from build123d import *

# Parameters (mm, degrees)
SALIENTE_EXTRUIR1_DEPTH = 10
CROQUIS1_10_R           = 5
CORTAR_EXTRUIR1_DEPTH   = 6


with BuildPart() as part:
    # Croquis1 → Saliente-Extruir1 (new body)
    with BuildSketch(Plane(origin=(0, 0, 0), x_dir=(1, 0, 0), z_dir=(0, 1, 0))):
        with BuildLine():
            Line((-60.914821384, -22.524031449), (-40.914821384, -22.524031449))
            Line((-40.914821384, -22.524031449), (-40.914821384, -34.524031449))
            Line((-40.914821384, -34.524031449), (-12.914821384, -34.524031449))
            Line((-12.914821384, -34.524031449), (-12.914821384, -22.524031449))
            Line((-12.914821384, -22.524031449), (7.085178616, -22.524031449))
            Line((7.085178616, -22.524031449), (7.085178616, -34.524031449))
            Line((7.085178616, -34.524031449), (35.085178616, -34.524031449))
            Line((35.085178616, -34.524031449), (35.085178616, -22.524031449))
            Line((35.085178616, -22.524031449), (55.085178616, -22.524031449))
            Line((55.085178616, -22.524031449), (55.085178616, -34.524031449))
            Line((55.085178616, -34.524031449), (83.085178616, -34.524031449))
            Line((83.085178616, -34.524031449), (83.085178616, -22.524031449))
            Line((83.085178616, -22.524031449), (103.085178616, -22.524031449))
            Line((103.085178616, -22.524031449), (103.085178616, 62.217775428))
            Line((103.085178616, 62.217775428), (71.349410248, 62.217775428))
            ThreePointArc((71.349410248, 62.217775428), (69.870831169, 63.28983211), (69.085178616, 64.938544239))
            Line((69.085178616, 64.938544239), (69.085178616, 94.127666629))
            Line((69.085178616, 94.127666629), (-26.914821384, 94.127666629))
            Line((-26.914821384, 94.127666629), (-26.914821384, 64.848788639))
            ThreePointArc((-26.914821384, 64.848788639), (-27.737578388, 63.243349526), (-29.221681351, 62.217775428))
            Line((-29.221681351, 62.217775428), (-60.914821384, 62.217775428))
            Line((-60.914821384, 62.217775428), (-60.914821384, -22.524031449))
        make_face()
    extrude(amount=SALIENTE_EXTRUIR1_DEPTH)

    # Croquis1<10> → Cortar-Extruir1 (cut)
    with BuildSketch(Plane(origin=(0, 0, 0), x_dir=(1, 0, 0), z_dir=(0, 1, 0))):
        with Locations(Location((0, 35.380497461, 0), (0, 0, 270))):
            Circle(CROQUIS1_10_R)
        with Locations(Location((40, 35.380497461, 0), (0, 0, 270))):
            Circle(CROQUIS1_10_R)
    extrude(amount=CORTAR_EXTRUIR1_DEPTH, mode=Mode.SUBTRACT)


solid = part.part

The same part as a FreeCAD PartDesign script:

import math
import FreeCAD as App
import Part
import Sketcher
from FreeCAD import Vector
Q = App.Units.Quantity

doc = App.newDocument("Part")
body = doc.addObject("PartDesign::Body", "Body")

sketch1 = body.newObject("Sketcher::SketchObject", "Sketch")
sketch1.AttachmentSupport = (doc.getObject("XZ_Plane"), [""])
sketch1.MapMode = "FlatFace"
sketch1.addGeometry(Part.LineSegment(Vector(-60.914821, 22.524031, 0), Vector(-40.914821, 22.524031, 0)), False)
sketch1.addGeometry(Part.LineSegment(Vector(-40.914821, 22.524031, 0), Vector(-40.914821, 34.524031, 0)), False)
sketch1.addGeometry(Part.LineSegment(Vector(-40.914821, 34.524031, 0), Vector(-12.914821, 34.524031, 0)), False)
sketch1.addGeometry(Part.LineSegment(Vector(-12.914821, 34.524031, 0), Vector(-12.914821, 22.524031, 0)), False)
sketch1.addGeometry(Part.LineSegment(Vector(-12.914821, 22.524031, 0), Vector(7.085179, 22.524031, 0)), False)
sketch1.addGeometry(Part.LineSegment(Vector(7.085179, 22.524031, 0), Vector(7.085179, 34.524031, 0)), False)
sketch1.addGeometry(Part.LineSegment(Vector(7.085179, 34.524031, 0), Vector(35.085179, 34.524031, 0)), False)
sketch1.addGeometry(Part.LineSegment(Vector(35.085179, 34.524031, 0), Vector(35.085179, 22.524031, 0)), False)
sketch1.addGeometry(Part.LineSegment(Vector(35.085179, 22.524031, 0), Vector(55.085179, 22.524031, 0)), False)
sketch1.addGeometry(Part.LineSegment(Vector(55.085179, 22.524031, 0), Vector(55.085179, 34.524031, 0)), False)
sketch1.addGeometry(Part.LineSegment(Vector(55.085179, 34.524031, 0), Vector(83.085179, 34.524031, 0)), False)
sketch1.addGeometry(Part.LineSegment(Vector(83.085179, 34.524031, 0), Vector(83.085179, 22.524031, 0)), False)
sketch1.addGeometry(Part.LineSegment(Vector(83.085179, 22.524031, 0), Vector(103.085179, 22.524031, 0)), False)
sketch1.addGeometry(Part.LineSegment(Vector(103.085179, 22.524031, 0), Vector(103.085179, -62.217775, 0)), False)
sketch1.addGeometry(Part.LineSegment(Vector(103.085179, -62.217775, 0), Vector(71.34941, -62.217775, 0)), False)
sketch1.addGeometry(Part.ArcOfCircle(Part.Circle(Vector(72.71483, -65.656616, 0), Vector(0, 0, 1), 3.7), math.radians(111.65596), math.radians(168.80939)), False)
sketch1.addGeometry(Part.LineSegment(Vector(69.085179, -64.938544, 0), Vector(69.085179, -94.127667, 0)), False)
sketch1.addGeometry(Part.LineSegment(Vector(69.085179, -94.127667, 0), Vector(-26.914821, -94.127667, 0)), False)
sketch1.addGeometry(Part.LineSegment(Vector(-26.914821, -94.127667, 0), Vector(-26.914821, -64.848789, 0)), False)
sketch1.addGeometry(Part.ArcOfCircle(Part.Circle(Vector(-30.519636, -65.682644, 0), Vector(0, 0, 1), 3.7), math.radians(13.024421), math.radians(69.463842)), False)
sketch1.addGeometry(Part.LineSegment(Vector(-29.221681, -62.217775, 0), Vector(-60.914821, -62.217775, 0)), False)
sketch1.addGeometry(Part.LineSegment(Vector(-60.914821, -62.217775, 0), Vector(-60.914821, 22.524031, 0)), False)
sketch1.addConstraint(Sketcher.Constraint("Coincident", 0, 2, 1, 1))
sketch1.addConstraint(Sketcher.Constraint("Coincident", 1, 2, 2, 1))
sketch1.addConstraint(Sketcher.Constraint("Coincident", 2, 2, 3, 1))
sketch1.addConstraint(Sketcher.Constraint("Coincident", 3, 2, 4, 1))
sketch1.addConstraint(Sketcher.Constraint("Coincident", 4, 2, 5, 1))
sketch1.addConstraint(Sketcher.Constraint("Coincident", 5, 2, 6, 1))
sketch1.addConstraint(Sketcher.Constraint("Coincident", 6, 2, 7, 1))
sketch1.addConstraint(Sketcher.Constraint("Coincident", 7, 2, 8, 1))
sketch1.addConstraint(Sketcher.Constraint("Coincident", 8, 2, 9, 1))
sketch1.addConstraint(Sketcher.Constraint("Coincident", 9, 2, 10, 1))
sketch1.addConstraint(Sketcher.Constraint("Coincident", 10, 2, 11, 1))
sketch1.addConstraint(Sketcher.Constraint("Coincident", 11, 2, 12, 1))
sketch1.addConstraint(Sketcher.Constraint("Coincident", 12, 2, 13, 1))
sketch1.addConstraint(Sketcher.Constraint("Coincident", 13, 2, 14, 1))
sketch1.addConstraint(Sketcher.Constraint("Coincident", 14, 2, 15, 1))
sketch1.addConstraint(Sketcher.Constraint("Coincident", 15, 2, 16, 1))
sketch1.addConstraint(Sketcher.Constraint("Coincident", 16, 2, 17, 1))
sketch1.addConstraint(Sketcher.Constraint("Coincident", 17, 2, 18, 1))
sketch1.addConstraint(Sketcher.Constraint("Coincident", 18, 2, 19, 1))
sketch1.addConstraint(Sketcher.Constraint("Coincident", 19, 2, 20, 1))
sketch1.addConstraint(Sketcher.Constraint("Coincident", 20, 2, 21, 1))
sketch1.addConstraint(Sketcher.Constraint("Coincident", 21, 2, 0, 1))
sketch1.addConstraint(Sketcher.Constraint("Horizontal", 0))
sketch1.addConstraint(Sketcher.Constraint("Vertical", 1))
sketch1.addConstraint(Sketcher.Constraint("Horizontal", 2))
sketch1.addConstraint(Sketcher.Constraint("Vertical", 3))
sketch1.addConstraint(Sketcher.Constraint("Horizontal", 4))
sketch1.addConstraint(Sketcher.Constraint("Vertical", 5))
sketch1.addConstraint(Sketcher.Constraint("Horizontal", 6))
sketch1.addConstraint(Sketcher.Constraint("Vertical", 7))
sketch1.addConstraint(Sketcher.Constraint("Horizontal", 8))
sketch1.addConstraint(Sketcher.Constraint("Vertical", 9))
sketch1.addConstraint(Sketcher.Constraint("Horizontal", 10))
sketch1.addConstraint(Sketcher.Constraint("Vertical", 11))
sketch1.addConstraint(Sketcher.Constraint("Horizontal", 12))
sketch1.addConstraint(Sketcher.Constraint("Vertical", 13))
sketch1.addConstraint(Sketcher.Constraint("Horizontal", 14))
sketch1.addConstraint(Sketcher.Constraint("Vertical", 16))
sketch1.addConstraint(Sketcher.Constraint("Horizontal", 17))
sketch1.addConstraint(Sketcher.Constraint("Vertical", 18))
sketch1.addConstraint(Sketcher.Constraint("Horizontal", 20))
sketch1.addConstraint(Sketcher.Constraint("Vertical", 21))
sketch1.addConstraint(Sketcher.Constraint("Equal", 15, 19))
sketch1.addConstraint(Sketcher.Constraint("Horizontal", 0, 2, 3, 2))
sketch1.addConstraint(Sketcher.Constraint("Horizontal", 2, 2, 5, 2))
sketch1.addConstraint(Sketcher.Constraint("Horizontal", 4, 2, 7, 2))
sketch1.addConstraint(Sketcher.Constraint("Horizontal", 6, 2, 9, 2))
sketch1.addConstraint(Sketcher.Constraint("Horizontal", 8, 2, 11, 2))
sketch1.addConstraint(Sketcher.Constraint("Horizontal", 14, 2, 19, 2))
sketch1.addConstraint(Sketcher.Constraint("Equal", 0, 4))
sketch1.addConstraint(Sketcher.Constraint("Equal", 2, 6))
sketch1.addConstraint(Sketcher.Constraint("Equal", 4, 8))
sketch1.addConstraint(Sketcher.Constraint("Equal", 6, 10))
sketch1.addConstraint(Sketcher.Constraint("Equal", 8, 12))
sketch1.addConstraint(Sketcher.Constraint("Radius", 15, Q("3.7 mm")))
sketch1.addConstraint(Sketcher.Constraint("DistanceX", 0, 1, 0, 2, Q("20 mm")))
sketch1.addConstraint(Sketcher.Constraint("DistanceX", 2, 1, 2, 2, Q("28 mm")))
sketch1.addConstraint(Sketcher.Constraint("DistanceX", 17, 2, 17, 1, Q("96 mm")))
sketch1.addConstraint(Sketcher.Constraint("DistanceY", 1, 1, 1, 2, Q("12 mm")))
sketch1.addConstraint(Sketcher.Constraint("DistanceX", 15, 2, 13, 2, Q("34 mm")))
sketch1.addConstraint(Sketcher.Constraint("DistanceX", 14, 2, 14, 1, Q("31.735768 mm")))
sketch1.addConstraint(Sketcher.Constraint("DistanceX", 20, 2, 20, 1, Q("31.69314 mm")))
sketch1.addConstraint(Sketcher.Constraint("DistanceY", 13, 2, 13, 1, Q("84.741807 mm")))
sketch1.addConstraint(Sketcher.Constraint("DistanceY", 16, 2, 16, 1, Q("29.189122 mm")))
sketch1.addConstraint(Sketcher.Constraint("DistanceY", 18, 1, 18, 2, Q("29.278878 mm")))
sketch1.addConstraint(Sketcher.Constraint("DistanceX", -1, 1, 15, 3, Q("72.71483 mm")))
sketch1.addConstraint(Sketcher.Constraint("DistanceX", 0, 2, -1, 1, Q("40.914821 mm")))
sketch1.addConstraint(Sketcher.Constraint("DistanceY", -1, 1, 0, 2, Q("22.524031 mm")))
pad1 = body.newObject("PartDesign::Pad", "Pad")
pad1.Profile = sketch1
pad1.Length = 10
pad1.Reversed = True

sketch2 = body.newObject("Sketcher::SketchObject", "Sketch001")
sketch2.AttachmentSupport = (doc.getObject("XZ_Plane"), [""])
sketch2.MapMode = "FlatFace"
sketch2.addGeometry(Part.Circle(Vector(0, -35.380497, 0), Vector(0, 0, 1), 5), False)
sketch2.addGeometry(Part.Circle(Vector(40, -35.380497, 0), Vector(0, 0, 1), 5), False)
sketch2.addConstraint(Sketcher.Constraint("Equal", 0, 1))
sketch2.addConstraint(Sketcher.Constraint("PointOnObject", 0, 3, -2))
sketch2.addConstraint(Sketcher.Constraint("Horizontal", 0, 3, 1, 3))
sketch2.addConstraint(Sketcher.Constraint("Diameter", 0, Q("10 mm")))
sketch2.addConstraint(Sketcher.Constraint("DistanceX", -1, 1, 1, 3, Q("40 mm")))
sketch2.addConstraint(Sketcher.Constraint("DistanceY", 0, 3, -1, 1, Q("35.380497 mm")))
pocket1 = body.newObject("PartDesign::Pocket", "Pocket")
pocket1.Profile = sketch2
pocket1.Length = 6

doc.recompute()
